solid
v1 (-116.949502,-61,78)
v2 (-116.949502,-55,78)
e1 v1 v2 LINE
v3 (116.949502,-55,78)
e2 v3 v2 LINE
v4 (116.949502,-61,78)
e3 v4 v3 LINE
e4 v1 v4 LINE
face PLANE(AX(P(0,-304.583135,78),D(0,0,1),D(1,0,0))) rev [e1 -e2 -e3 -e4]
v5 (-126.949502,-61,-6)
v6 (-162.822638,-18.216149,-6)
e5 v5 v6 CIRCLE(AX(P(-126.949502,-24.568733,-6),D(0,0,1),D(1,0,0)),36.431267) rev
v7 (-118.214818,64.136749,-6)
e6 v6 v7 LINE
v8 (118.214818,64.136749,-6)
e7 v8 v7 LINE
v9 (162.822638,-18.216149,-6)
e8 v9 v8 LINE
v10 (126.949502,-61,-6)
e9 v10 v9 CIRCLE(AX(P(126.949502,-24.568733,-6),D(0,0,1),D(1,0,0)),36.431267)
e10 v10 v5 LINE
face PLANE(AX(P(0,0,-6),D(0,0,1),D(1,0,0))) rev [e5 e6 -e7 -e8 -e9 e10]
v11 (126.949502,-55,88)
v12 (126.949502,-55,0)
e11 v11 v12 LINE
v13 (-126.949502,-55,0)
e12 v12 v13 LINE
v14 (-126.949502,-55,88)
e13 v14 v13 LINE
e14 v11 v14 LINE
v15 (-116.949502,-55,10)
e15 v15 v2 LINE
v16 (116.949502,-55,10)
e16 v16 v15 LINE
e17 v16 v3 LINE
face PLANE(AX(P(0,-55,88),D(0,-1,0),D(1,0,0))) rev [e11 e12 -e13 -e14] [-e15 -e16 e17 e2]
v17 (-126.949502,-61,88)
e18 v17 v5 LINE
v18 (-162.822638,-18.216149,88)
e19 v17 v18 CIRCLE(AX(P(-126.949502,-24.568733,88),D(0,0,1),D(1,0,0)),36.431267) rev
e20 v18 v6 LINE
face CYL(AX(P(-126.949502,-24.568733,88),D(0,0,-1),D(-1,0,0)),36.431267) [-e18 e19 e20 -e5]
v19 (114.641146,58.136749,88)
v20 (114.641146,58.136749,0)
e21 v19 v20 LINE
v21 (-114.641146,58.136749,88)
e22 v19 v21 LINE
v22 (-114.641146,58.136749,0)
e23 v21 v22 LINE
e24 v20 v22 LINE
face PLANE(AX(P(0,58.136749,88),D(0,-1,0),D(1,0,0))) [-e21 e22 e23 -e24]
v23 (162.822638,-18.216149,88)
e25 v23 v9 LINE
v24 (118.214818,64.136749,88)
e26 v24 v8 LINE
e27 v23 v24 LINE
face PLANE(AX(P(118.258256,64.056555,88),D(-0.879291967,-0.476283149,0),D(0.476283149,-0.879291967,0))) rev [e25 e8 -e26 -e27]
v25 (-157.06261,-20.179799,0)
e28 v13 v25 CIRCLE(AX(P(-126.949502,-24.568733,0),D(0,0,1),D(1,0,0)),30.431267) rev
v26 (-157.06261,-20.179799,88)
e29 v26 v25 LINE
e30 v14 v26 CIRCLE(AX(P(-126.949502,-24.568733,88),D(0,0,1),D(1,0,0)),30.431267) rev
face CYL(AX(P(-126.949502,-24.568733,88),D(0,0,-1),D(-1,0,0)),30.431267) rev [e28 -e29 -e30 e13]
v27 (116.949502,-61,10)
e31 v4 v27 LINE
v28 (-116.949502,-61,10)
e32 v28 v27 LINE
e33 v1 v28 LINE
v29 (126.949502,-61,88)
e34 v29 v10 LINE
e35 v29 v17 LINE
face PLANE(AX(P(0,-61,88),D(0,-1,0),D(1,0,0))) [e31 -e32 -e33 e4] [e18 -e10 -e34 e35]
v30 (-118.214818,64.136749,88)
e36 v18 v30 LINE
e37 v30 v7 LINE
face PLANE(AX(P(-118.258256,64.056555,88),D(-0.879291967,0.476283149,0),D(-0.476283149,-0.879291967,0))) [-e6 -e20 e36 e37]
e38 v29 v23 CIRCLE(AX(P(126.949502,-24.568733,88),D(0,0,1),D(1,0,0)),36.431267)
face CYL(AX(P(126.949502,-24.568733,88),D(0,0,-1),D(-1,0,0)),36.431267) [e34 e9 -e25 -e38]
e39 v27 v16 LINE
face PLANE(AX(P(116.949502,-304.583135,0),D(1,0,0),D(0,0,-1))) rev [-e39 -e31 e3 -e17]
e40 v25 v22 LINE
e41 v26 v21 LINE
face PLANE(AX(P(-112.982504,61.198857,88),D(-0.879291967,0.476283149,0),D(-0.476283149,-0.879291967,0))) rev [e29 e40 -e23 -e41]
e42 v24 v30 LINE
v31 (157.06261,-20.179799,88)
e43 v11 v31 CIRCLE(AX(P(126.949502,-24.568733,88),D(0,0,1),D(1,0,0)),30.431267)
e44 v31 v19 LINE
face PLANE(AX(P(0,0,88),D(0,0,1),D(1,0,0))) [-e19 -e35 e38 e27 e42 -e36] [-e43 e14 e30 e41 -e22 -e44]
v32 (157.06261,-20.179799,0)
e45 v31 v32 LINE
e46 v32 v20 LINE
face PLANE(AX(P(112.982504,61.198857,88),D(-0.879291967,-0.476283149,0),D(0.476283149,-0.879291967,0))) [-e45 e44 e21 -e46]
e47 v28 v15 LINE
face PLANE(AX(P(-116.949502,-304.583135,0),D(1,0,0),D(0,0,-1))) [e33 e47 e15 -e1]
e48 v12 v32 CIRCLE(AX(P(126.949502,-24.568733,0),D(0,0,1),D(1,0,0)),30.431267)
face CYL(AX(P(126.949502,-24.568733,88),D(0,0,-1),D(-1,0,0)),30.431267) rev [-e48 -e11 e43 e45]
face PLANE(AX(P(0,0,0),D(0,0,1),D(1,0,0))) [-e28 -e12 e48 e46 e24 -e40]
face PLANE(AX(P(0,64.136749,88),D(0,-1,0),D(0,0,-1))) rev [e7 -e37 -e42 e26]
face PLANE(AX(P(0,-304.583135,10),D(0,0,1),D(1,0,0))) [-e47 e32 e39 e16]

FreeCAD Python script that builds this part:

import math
import FreeCAD as App
import Part
import Sketcher

V = App.Vector
Q = App.Units.Quantity

doc = App.newDocument("Part")
body = doc.addObject("PartDesign::Body", "Body")

sketch1 = body.newObject("Sketcher::SketchObject", "Sketch")
sketch1.AttachmentSupport = (doc.getObject("XY_Plane"), [""])
sketch1.MapMode = "FlatFace"
sketch1.addGeometry(Part.LineSegment(V(118.214818, 64.136749, 0), V(-118.214818, 64.136749, 0)), False)
sketch1.addGeometry(Part.LineSegment(V(-118.214818, 64.136749, 0), V(-162.822638, -18.216149, 0)), False)
sketch1.addGeometry(Part.ArcOfCircle(Part.Circle(V(-126.949502, -24.568733, 0), V(0, 0, 1), 36.431267), math.radians(169.9579), math.radians(270)), False)
sketch1.addGeometry(Part.LineSegment(V(-126.949502, -61, 0), V(126.949502, -61, 0)), False)
sketch1.addGeometry(Part.ArcOfCircle(Part.Circle(V(126.949502, -24.568733, 0), V(0, 0, 1), 36.431267), math.radians(-90), math.radians(10.0421)), False)
sketch1.addGeometry(Part.LineSegment(V(162.822638, -18.216149, 0), V(118.214818, 64.136749, 0)), False)
sketch1.addGeometry(Part.LineSegment(V(-114.641146, 58.136749, 0), V(114.641146, 58.136749, 0)), False)
sketch1.addGeometry(Part.LineSegment(V(114.641146, 58.136749, 0), V(157.06261, -20.179799, 0)), False)
sketch1.addGeometry(Part.ArcOfCircle(Part.Circle(V(126.949502, -24.568733, 0), V(0, 0, 1), 30.431267), math.radians(-90), math.radians(8.292373)), False)
sketch1.addGeometry(Part.LineSegment(V(126.949502, -55, 0), V(-126.949502, -55, 0)), False)
sketch1.addGeometry(Part.ArcOfCircle(Part.Circle(V(-126.949502, -24.568733, 0), V(0, 0, 1), 30.431267), math.radians(171.707627), math.radians(270)), False)
sketch1.addGeometry(Part.LineSegment(V(-157.06261, -20.179799, 0), V(-114.641146, 58.136749, 0)), False)
sketch1.addConstraint(Sketcher.Constraint("Coincident", 0, 2, 1, 1))
sketch1.addConstraint(Sketcher.Constraint("Coincident", 1, 2, 2, 1))
sketch1.addConstraint(Sketcher.Constraint("Tangent", 2, 2, 3, 1))
sketch1.addConstraint(Sketcher.Constraint("Tangent", 3, 2, 4, 1))
sketch1.addConstraint(Sketcher.Constraint("Coincident", 4, 2, 5, 1))
sketch1.addConstraint(Sketcher.Constraint("Coincident", 5, 2, 0, 1))
sketch1.addConstraint(Sketcher.Constraint("Coincident", 6, 2, 7, 1))
sketch1.addConstraint(Sketcher.Constraint("Coincident", 7, 2, 8, 2))
sketch1.addConstraint(Sketcher.Constraint("Tangent", 8, 1, 9, 1))
sketch1.addConstraint(Sketcher.Constraint("Tangent", 9, 2, 10, 2))
sketch1.addConstraint(Sketcher.Constraint("Coincident", 10, 1, 11, 1))
sketch1.addConstraint(Sketcher.Constraint("Coincident", 11, 2, 6, 1))
sketch1.addConstraint(Sketcher.Constraint("Horizontal", 0))
sketch1.addConstraint(Sketcher.Constraint("Horizontal", 3))
sketch1.addConstraint(Sketcher.Constraint("Horizontal", 6))
sketch1.addConstraint(Sketcher.Constraint("Horizontal", 9))
sketch1.addConstraint(Sketcher.Constraint("Coincident", 8, 3, 4, 3))
sketch1.addConstraint(Sketcher.Constraint("Coincident", 10, 3, 2, 3))
sketch1.addConstraint(Sketcher.Constraint("Equal", 2, 4))
sketch1.addConstraint(Sketcher.Constraint("Symmetric", 1, 2, 4, 2, -2))
sketch1.addConstraint(Sketcher.Constraint("Parallel", 5, 7))
sketch1.addConstraint(Sketcher.Constraint("Parallel", 1, 11))
sketch1.addConstraint(Sketcher.Constraint("Horizontal", 7, 2, 10, 1))
sketch1.addConstraint(Sketcher.Constraint("Equal", 1, 5))
sketch1.addConstraint(Sketcher.Constraint("DistanceY", 2, 2, -1, 1, Q("61 mm")))
sketch1.addConstraint(Sketcher.Constraint("DistanceY", 8, 1, -1, 1, Q("55 mm")))
sketch1.addConstraint(Sketcher.Constraint("DistanceY", 6, 2, 5, 2, Q("6 mm")))
sketch1.addConstraint(Sketcher.Constraint("Radius", 2, Q("36.431267 mm")))
sketch1.addConstraint(Sketcher.Constraint("DistanceX", 2, 3, -1, 1, Q("126.949502 mm")))
sketch1.addConstraint(Sketcher.Constraint("DistanceY", 7, 2, -1, 1, Q("20.179799 mm")))
sketch1.addConstraint(Sketcher.Constraint("Distance", 7, Q("89.067739 mm")))
sketch1.addConstraint(Sketcher.Constraint("DistanceX", 0, 2, 0, 1, Q("236.429637 mm")))
sketch1.addConstraint(Sketcher.Constraint("DistanceX", 6, 1, 6, 2, Q("229.282292 mm")))
pad1 = body.newObject("PartDesign::Pad", "Pad")
pad1.Profile = sketch1
pad1.Length = 88

sketch2 = body.newObject("Sketcher::SketchObject", "Sketch001")
sketch2.AttachmentSupport = (doc.getObject("XZ_Plane"), [""])
sketch2.MapMode = "FlatFace"
sketch2.AttachmentOffset = App.Placement(V(0, 0, 46), App.Rotation())
sketch2.addGeometry(Part.LineSegment(V(-116.949502, 78, 0), V(-116.949502, 10, 0)), False)
sketch2.addGeometry(Part.LineSegment(V(-116.949502, 10, 0), V(116.949502, 10, 0)), False)
sketch2.addGeometry(Part.LineSegment(V(116.949502, 10, 0), V(116.949502, 78, 0)), False)
sketch2.addGeometry(Part.LineSegment(V(116.949502, 78, 0), V(-116.949502, 78, 0)), False)
sketch2.addConstraint(Sketcher.Constraint("Coincident", 0, 2, 1, 1))
sketch2.addConstraint(Sketcher.Constraint("Coincident", 1, 2, 2, 1))
sketch2.addConstraint(Sketcher.Constraint("Coincident", 2, 2, 3, 1))
sketch2.addConstraint(Sketcher.Constraint("Coincident", 3, 2, 0, 1))
sketch2.addConstraint(Sketcher.Constraint("Vertical", 0))
sketch2.addConstraint(Sketcher.Constraint("Horizontal", 1))
sketch2.addConstraint(Sketcher.Constraint("Vertical", 2))
sketch2.addConstraint(Sketcher.Constraint("Horizontal", 3))
sketch2.addConstraint(Sketcher.Constraint("DistanceY", 0, 2, 0, 1, Q("68 mm")))
sketch2.addConstraint(Sketcher.Constraint("DistanceY", -1, 1, 0, 2, Q("10 mm")))
sketch2.addConstraint(Sketcher.Constraint("DistanceX", 0, 2, -1, 1, Q("116.949502 mm")))
sketch2.addConstraint(Sketcher.Constraint("DistanceX", -1, 1, 1, 2, Q("116.949502 mm")))
pocket1 = body.newObject("PartDesign::Pocket", "Pocket")
pocket1.Profile = sketch2
pocket1.Length = 15
pocket1.Reversed = True

sketch3 = body.newObject("Sketcher::SketchObject", "Sketch002")
sketch3.AttachmentSupport = (doc.getObject("XY_Plane"), [""])
sketch3.MapMode = "FlatFace"
sketch3.addGeometry(Part.LineSegment(V(162.822638, -18.216149, 0), V(118.214818, 64.136749, 0)), False)
sketch3.addGeometry(Part.LineSegment(V(118.214818, 64.136749, 0), V(-118.214818, 64.136749, 0)), False)
sketch3.addGeometry(Part.LineSegment(V(-118.214818, 64.136749, 0), V(-162.822638, -18.216149, 0)), False)
sketch3.addGeometry(Part.ArcOfCircle(Part.Circle(V(-126.949502, -24.568733, 0), V(0, 0, 1), 36.431267), math.radians(169.9579), math.radians(270)), False)
sketch3.addGeometry(Part.LineSegment(V(-126.949502, -61, 0), V(126.949502, -61, 0)), False)
sketch3.addGeometry(Part.ArcOfCircle(Part.Circle(V(126.949502, -24.568733, 0), V(0, 0, 1), 36.431267), math.radians(-90), math.radians(10.0421)), False)
sketch3.addConstraint(Sketcher.Constraint("Coincident", 0, 2, 1, 1))
sketch3.addConstraint(Sketcher.Constraint("Coincident", 1, 2, 2, 1))
sketch3.addConstraint(Sketcher.Constraint("Coincident", 2, 2, 3, 1))
sketch3.addConstraint(Sketcher.Constraint("Tangent", 3, 2, 4, 1))
sketch3.addConstraint(Sketcher.Constraint("Tangent", 4, 2, 5, 1))
sketch3.addConstraint(Sketcher.Constraint("Coincident", 5, 2, 0, 1))
sketch3.addConstraint(Sketcher.Constraint("Horizontal", 1))
sketch3.addConstraint(Sketcher.Constraint("Horizontal", 4))
sketch3.addConstraint(Sketcher.Constraint("Equal", 3, 5))
sketch3.addConstraint(Sketcher.Constraint("Symmetric", 2, 2, 5, 2, -2))
sketch3.addConstraint(Sketcher.Constraint("Equal", 0, 2))
sketch3.addConstraint(Sketcher.Constraint("DistanceY", 3, 2, -1, 1, Q("61 mm")))
sketch3.addConstraint(Sketcher.Constraint("Radius", 3, Q("36.431267 mm")))
sketch3.addConstraint(Sketcher.Constraint("DistanceX", 3, 3, -1, 1, Q("126.949502 mm")))
sketch3.addConstraint(Sketcher.Constraint("DistanceX", 1, 2, 1, 1, Q("236.429637 mm")))
sketch3.addConstraint(Sketcher.Constraint("DistanceY", -1, 1, 0, 2, Q("64.136749 mm")))
sketch3.addConstraint(Sketcher.Constraint("DistanceY", 2, 2, -1, 1, Q("18.216149 mm")))
pad2 = body.newObject("PartDesign::Pad", "Pad001")
pad2.Profile = sketch3
pad2.Length = 6
pad2.Reversed = True

doc.recompute()
